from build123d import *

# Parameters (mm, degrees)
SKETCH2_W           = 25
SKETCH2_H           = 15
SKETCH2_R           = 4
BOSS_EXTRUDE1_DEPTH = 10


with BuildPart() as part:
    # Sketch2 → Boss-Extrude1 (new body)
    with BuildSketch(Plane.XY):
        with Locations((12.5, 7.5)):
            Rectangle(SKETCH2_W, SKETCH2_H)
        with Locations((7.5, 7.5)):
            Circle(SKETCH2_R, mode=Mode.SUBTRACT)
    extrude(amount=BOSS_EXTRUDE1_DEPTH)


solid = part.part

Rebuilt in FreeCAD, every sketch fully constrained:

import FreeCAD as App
import Part
import Sketcher
from FreeCAD import Vector
Q = App.Units.Quantity


def add_polygon(sketch, points):
    """Adds a closed chain of lines whose ends are joined by coincident constraints."""
    first, n = sketch.GeometryCount, len(points)
    for a, b in zip(points, points[1:] + points[:1]):
        sketch.addGeometry(Part.LineSegment(App.Vector(*a, 0), App.Vector(*b, 0)), False)
    for i in range(n):
        sketch.addConstraint(Sketcher.Constraint("Coincident", first + i, 2, first + (i + 1) % n, 1))

doc = App.newDocument("Part")
params = doc.addObject("Spreadsheet::Sheet", "Params")
for row, (alias, value) in enumerate([
    ("sketch1_diameter", "8 mm"),
    ("sketch1_width", "25 mm"),
    ("sketch1_height", "15 mm"),
    ("pad1_length", "10 mm"),
], start=1):
    params.set(f"A{row}", alias)
    params.set(f"B{row}", "=" + value)
    params.setAlias(f"B{row}", alias)

body = doc.addObject("PartDesign::Body", "Body")

sketch1 = body.newObject("Sketcher::SketchObject", "Sketch")
sketch1.AttachmentSupport = (doc.getObject("XY_Plane"), [""])
sketch1.MapMode = "FlatFace"
add_polygon(sketch1, [(0, 15), (0, 0), (25, 0), (25, 15)])
sketch1.addGeometry(Part.Circle(Vector(7.5, 7.5, 0), Vector(0, 0, 1), 4), False)
sketch1.addConstraint([
    Sketcher.Constraint("Vertical", 0),
    Sketcher.Constraint("Horizontal", 1),
    Sketcher.Constraint("Vertical", 2),
    Sketcher.Constraint("Horizontal", 3),
    Sketcher.Constraint("Coincident", 0, 2, -1, 1),
    Sketcher.Constraint("Diameter", 4, Q("8 mm")),
    Sketcher.Constraint("DistanceX", 1, 1, 1, 2, Q("25 mm")),
    Sketcher.Constraint("DistanceY", 0, 2, 0, 1, Q("15 mm")),
    Sketcher.Constraint("DistanceX", -1, 1, 4, 3, Q("7.5 mm")),
    Sketcher.Constraint("DistanceY", -1, 1, 4, 3, Q("7.5 mm")),
])
sketch1.setExpression("Constraints[9]", "Params.sketch1_diameter")
sketch1.setExpression("Constraints[10]", "Params.sketch1_width")
sketch1.setExpression("Constraints[11]", "Params.sketch1_height")
pad1 = body.newObject("PartDesign::Pad", "Pad")
pad1.Profile = sketch1
pad1.setExpression("Length", "Params.pad1_length")

doc.recompute()
